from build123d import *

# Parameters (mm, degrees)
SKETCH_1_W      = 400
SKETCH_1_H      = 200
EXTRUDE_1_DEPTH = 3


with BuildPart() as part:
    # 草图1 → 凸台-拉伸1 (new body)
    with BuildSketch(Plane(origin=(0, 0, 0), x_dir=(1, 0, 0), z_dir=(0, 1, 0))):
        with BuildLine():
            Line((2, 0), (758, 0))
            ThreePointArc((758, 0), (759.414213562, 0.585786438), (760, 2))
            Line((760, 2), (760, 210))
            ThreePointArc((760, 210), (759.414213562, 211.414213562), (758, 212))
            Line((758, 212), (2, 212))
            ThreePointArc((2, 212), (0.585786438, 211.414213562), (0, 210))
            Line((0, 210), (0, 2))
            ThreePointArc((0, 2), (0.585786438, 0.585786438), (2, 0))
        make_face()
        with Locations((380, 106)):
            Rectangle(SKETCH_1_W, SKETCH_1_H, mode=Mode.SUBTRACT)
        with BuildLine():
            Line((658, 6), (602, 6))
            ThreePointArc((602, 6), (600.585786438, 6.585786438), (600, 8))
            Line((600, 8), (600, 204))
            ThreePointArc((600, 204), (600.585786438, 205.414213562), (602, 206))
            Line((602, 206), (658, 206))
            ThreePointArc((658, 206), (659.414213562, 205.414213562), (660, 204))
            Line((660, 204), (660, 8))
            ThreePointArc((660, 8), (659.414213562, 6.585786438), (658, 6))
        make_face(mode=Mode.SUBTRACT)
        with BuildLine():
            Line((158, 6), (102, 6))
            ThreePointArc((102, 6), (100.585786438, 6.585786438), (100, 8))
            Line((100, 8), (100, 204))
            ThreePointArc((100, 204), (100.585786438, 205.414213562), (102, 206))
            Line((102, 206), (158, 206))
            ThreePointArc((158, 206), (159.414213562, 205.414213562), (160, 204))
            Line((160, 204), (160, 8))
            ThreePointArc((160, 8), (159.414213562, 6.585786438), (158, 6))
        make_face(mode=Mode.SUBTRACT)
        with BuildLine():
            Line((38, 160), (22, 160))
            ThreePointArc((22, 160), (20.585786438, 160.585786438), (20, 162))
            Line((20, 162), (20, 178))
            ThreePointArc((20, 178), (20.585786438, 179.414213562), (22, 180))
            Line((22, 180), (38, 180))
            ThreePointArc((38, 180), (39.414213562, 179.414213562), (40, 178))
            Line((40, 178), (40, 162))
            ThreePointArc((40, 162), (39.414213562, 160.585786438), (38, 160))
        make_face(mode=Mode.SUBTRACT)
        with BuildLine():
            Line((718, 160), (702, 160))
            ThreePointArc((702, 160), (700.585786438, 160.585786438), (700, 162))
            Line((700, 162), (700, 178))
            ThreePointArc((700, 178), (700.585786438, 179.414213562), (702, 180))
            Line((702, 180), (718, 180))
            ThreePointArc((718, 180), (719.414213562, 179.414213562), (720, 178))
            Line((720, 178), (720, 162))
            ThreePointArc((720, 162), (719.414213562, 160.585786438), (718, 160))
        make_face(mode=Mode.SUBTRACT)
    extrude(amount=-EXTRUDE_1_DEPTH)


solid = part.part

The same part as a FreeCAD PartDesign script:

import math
import FreeCAD as App
import Part
import Sketcher
Q = App.Units.Quantity

doc = App.newDocument("Part")
body = doc.addObject("PartDesign::Body", "Body")

# Sketch on XZ plane
sketch1 = body.newObject("Sketcher::SketchObject", "Sketch")
sketch1.AttachmentSupport = (doc.getObject("XZ_Plane"), [""])
sketch1.MapMode = "FlatFace"
sketch1.addGeometry(Part.LineSegment(App.Vector(2, 0, 0), App.Vector(758, 0, 0)), False)
sketch1.addGeometry(Part.ArcOfCircle(Part.Circle(App.Vector(758, -2, 0), App.Vector(0, 0, 1), 2), math.radians(0), math.radians(90)), False)
sketch1.addGeometry(Part.LineSegment(App.Vector(760, -2, 0), App.Vector(760, -210, 0)), False)
sketch1.addGeometry(Part.ArcOfCircle(Part.Circle(App.Vector(758, -210, 0), App.Vector(0, 0, 1), 2), math.radians(-90), math.radians(0)), False)
sketch1.addGeometry(Part.LineSegment(App.Vector(758, -212, 0), App.Vector(2, -212, 0)), False)
sketch1.addGeometry(Part.ArcOfCircle(Part.Circle(App.Vector(2, -210, 0), App.Vector(0, 0, 1), 2), math.radians(-180), math.radians(-90)), False)
sketch1.addGeometry(Part.LineSegment(App.Vector(0, -210, 0), App.Vector(0, -2, 0)), False)
sketch1.addGeometry(Part.ArcOfCircle(Part.Circle(App.Vector(2, -2, 0), App.Vector(0, 0, 1), 2), math.radians(90), math.radians(180)), False)
sketch1.addGeometry(Part.ArcOfCircle(Part.Circle(App.Vector(158, -8, 0), App.Vector(0, 0, 1), 2), math.radians(0), math.radians(90)), False)
sketch1.addGeometry(Part.LineSegment(App.Vector(158, -6, 0), App.Vector(102, -6, 0)), False)
sketch1.addGeometry(Part.ArcOfCircle(Part.Circle(App.Vector(102, -8, 0), App.Vector(0, 0, 1), 2), math.radians(90), math.radians(180)), False)
sketch1.addGeometry(Part.LineSegment(App.Vector(100, -8, 0), App.Vector(100, -204, 0)), False)
sketch1.addGeometry(Part.ArcOfCircle(Part.Circle(App.Vector(102, -204, 0), App.Vector(0, 0, 1), 2), math.radians(-180), math.radians(-90)), False)
sketch1.addGeometry(Part.LineSegment(App.Vector(102, -206, 0), App.Vector(158, -206, 0)), False)
sketch1.addGeometry(Part.ArcOfCircle(Part.Circle(App.Vector(158, -204, 0), App.Vector(0, 0, 1), 2), math.radians(-90), math.radians(0)), False)
sketch1.addGeometry(Part.LineSegment(App.Vector(160, -204, 0), App.Vector(160, -8, 0)), False)
sketch1.addGeometry(Part.ArcOfCircle(Part.Circle(App.Vector(38, -162, 0), App.Vector(0, 0, 1), 2), math.radians(0), math.radians(90)), False)
sketch1.addGeometry(Part.LineSegment(App.Vector(38, -160, 0), App.Vector(22, -160, 0)), False)
sketch1.addGeometry(Part.ArcOfCircle(Part.Circle(App.Vector(22, -162, 0), App.Vector(0, 0, 1), 2), math.radians(90), math.radians(180)), False)
sketch1.addGeometry(Part.LineSegment(App.Vector(20, -162, 0), App.Vector(20, -178, 0)), False)
sketch1.addGeometry(Part.ArcOfCircle(Part.Circle(App.Vector(22, -178, 0), App.Vector(0, 0, 1), 2), math.radians(-180), math.radians(-90)), False)
sketch1.addGeometry(Part.LineSegment(App.Vector(22, -180, 0), App.Vector(38, -180, 0)), False)
sketch1.addGeometry(Part.ArcOfCircle(Part.Circle(App.Vector(38, -178, 0), App.Vector(0, 0, 1), 2), math.radians(-90), math.radians(0)), False)
sketch1.addGeometry(Part.LineSegment(App.Vector(40, -178, 0), App.Vector(40, -162, 0)), False)
sketch1.addGeometry(Part.LineSegment(App.Vector(580, -6, 0), App.Vector(180, -6, 0)), False)
sketch1.addGeometry(Part.LineSegment(App.Vector(180, -6, 0), App.Vector(180, -206, 0)), False)
sketch1.addGeometry(Part.LineSegment(App.Vector(180, -206, 0), App.Vector(580, -206, 0)), False)
sketch1.addGeometry(Part.LineSegment(App.Vector(580, -206, 0), App.Vector(580, -6, 0)), False)
sketch1.addGeometry(Part.ArcOfCircle(Part.Circle(App.Vector(658, -8, 0), App.Vector(0, 0, 1), 2), math.radians(0), math.radians(90)), False)
sketch1.addGeometry(Part.LineSegment(App.Vector(658, -6, 0), App.Vector(602, -6, 0)), False)
sketch1.addGeometry(Part.ArcOfCircle(Part.Circle(App.Vector(602, -8, 0), App.Vector(0, 0, 1), 2), math.radians(90), math.radians(180)), False)
sketch1.addGeometry(Part.LineSegment(App.Vector(600, -8, 0), App.Vector(600, -204, 0)), False)
sketch1.addGeometry(Part.ArcOfCircle(Part.Circle(App.Vector(602, -204, 0), App.Vector(0, 0, 1), 2), math.radians(-180), math.radians(-90)), False)
sketch1.addGeometry(Part.LineSegment(App.Vector(602, -206, 0), App.Vector(658, -206, 0)), False)
sketch1.addGeometry(Part.ArcOfCircle(Part.Circle(App.Vector(658, -204, 0), App.Vector(0, 0, 1), 2), math.radians(-90), math.radians(0)), False)
sketch1.addGeometry(Part.LineSegment(App.Vector(660, -204, 0), App.Vector(660, -8, 0)), False)
sketch1.addGeometry(Part.ArcOfCircle(Part.Circle(App.Vector(718, -162, 0), App.Vector(0, 0, 1), 2), math.radians(0), math.radians(90)), False)
sketch1.addGeometry(Part.LineSegment(App.Vector(718, -160, 0), App.Vector(702, -160, 0)), False)
sketch1.addGeometry(Part.ArcOfCircle(Part.Circle(App.Vector(702, -162, 0), App.Vector(0, 0, 1), 2), math.radians(90), math.radians(180)), False)
sketch1.addGeometry(Part.LineSegment(App.Vector(700, -162, 0), App.Vector(700, -178, 0)), False)
sketch1.addGeometry(Part.ArcOfCircle(Part.Circle(App.Vector(702, -178, 0), App.Vector(0, 0, 1), 2), math.radians(-180), math.radians(-90)), False)
sketch1.addGeometry(Part.LineSegment(App.Vector(702, -180, 0), App.Vector(718, -180, 0)), False)
sketch1.addGeometry(Part.ArcOfCircle(Part.Circle(App.Vector(718, -178, 0), App.Vector(0, 0, 1), 2), math.radians(-90), math.radians(0)), False)
sketch1.addGeometry(Part.LineSegment(App.Vector(720, -178, 0), App.Vector(720, -162, 0)), False)
sketch1.addConstraint(Sketcher.Constraint("Tangent", 0, 2, 1, 2))
sketch1.addConstraint(Sketcher.Constraint("Tangent", 1, 1, 2, 1))
sketch1.addConstraint(Sketcher.Constraint("Tangent", 2, 2, 3, 2))
sketch1.addConstraint(Sketcher.Constraint("Tangent", 3, 1, 4, 1))
sketch1.addConstraint(Sketcher.Constraint("Tangent", 4, 2, 5, 2))
sketch1.addConstraint(Sketcher.Constraint("Tangent", 5, 1, 6, 1))
sketch1.addConstraint(Sketcher.Constraint("Tangent", 6, 2, 7, 2))
sketch1.addConstraint(Sketcher.Constraint("Tangent", 7, 1, 0, 1))
sketch1.addConstraint(Sketcher.Constraint("Tangent", 8, 2, 9, 1))
sketch1.addConstraint(Sketcher.Constraint("Tangent", 9, 2, 10, 1))
sketch1.addConstraint(Sketcher.Constraint("Tangent", 10, 2, 11, 1))
sketch1.addConstraint(Sketcher.Constraint("Tangent", 11, 2, 12, 1))
sketch1.addConstraint(Sketcher.Constraint("Tangent", 12, 2, 13, 1))
sketch1.addConstraint(Sketcher.Constraint("Tangent", 13, 2, 14, 1))
sketch1.addConstraint(Sketcher.Constraint("Tangent", 14, 2, 15, 1))
sketch1.addConstraint(Sketcher.Constraint("Tangent", 15, 2, 8, 1))
sketch1.addConstraint(Sketcher.Constraint("Tangent", 16, 2, 17, 1))
sketch1.addConstraint(Sketcher.Constraint("Tangent", 17, 2, 18, 1))
sketch1.addConstraint(Sketcher.Constraint("Tangent", 18, 2, 19, 1))
sketch1.addConstraint(Sketcher.Constraint("Tangent", 19, 2, 20, 1))
sketch1.addConstraint(Sketcher.Constraint("Tangent", 20, 2, 21, 1))
sketch1.addConstraint(Sketcher.Constraint("Tangent", 21, 2, 22, 1))
sketch1.addConstraint(Sketcher.Constraint("Tangent", 22, 2, 23, 1))
sketch1.addConstraint(Sketcher.Constraint("Tangent", 23, 2, 16, 1))
sketch1.addConstraint(Sketcher.Constraint("Coincident", 24, 2, 25, 1))
sketch1.addConstraint(Sketcher.Constraint("Coincident", 25, 2, 26, 1))
sketch1.addConstraint(Sketcher.Constraint("Coincident", 26, 2, 27, 1))
sketch1.addConstraint(Sketcher.Constraint("Coincident", 27, 2, 24, 1))
sketch1.addConstraint(Sketcher.Constraint("Tangent", 28, 2, 29, 1))
sketch1.addConstraint(Sketcher.Constraint("Tangent", 29, 2, 30, 1))
sketch1.addConstraint(Sketcher.Constraint("Tangent", 30, 2, 31, 1))
sketch1.addConstraint(Sketcher.Constraint("Tangent", 31, 2, 32, 1))
sketch1.addConstraint(Sketcher.Constraint("Tangent", 32, 2, 33, 1))
sketch1.addConstraint(Sketcher.Constraint("Tangent", 33, 2, 34, 1))
sketch1.addConstraint(Sketcher.Constraint("Tangent", 34, 2, 35, 1))
sketch1.addConstraint(Sketcher.Constraint("Tangent", 35, 2, 28, 1))
sketch1.addConstraint(Sketcher.Constraint("Tangent", 36, 2, 37, 1))
sketch1.addConstraint(Sketcher.Constraint("Tangent", 37, 2, 38, 1))
sketch1.addConstraint(Sketcher.Constraint("Tangent", 38, 2, 39, 1))
sketch1.addConstraint(Sketcher.Constraint("Tangent", 39, 2, 40, 1))
sketch1.addConstraint(Sketcher.Constraint("Tangent", 40, 2, 41, 1))
sketch1.addConstraint(Sketcher.Constraint("Tangent", 41, 2, 42, 1))
sketch1.addConstraint(Sketcher.Constraint("Tangent", 42, 2, 43, 1))
sketch1.addConstraint(Sketcher.Constraint("Tangent", 43, 2, 36, 1))
sketch1.addConstraint(Sketcher.Constraint("Horizontal", 0))
sketch1.addConstraint(Sketcher.Constraint("Vertical", 2))
sketch1.addConstraint(Sketcher.Constraint("Horizontal", 4))
sketch1.addConstraint(Sketcher.Constraint("Vertical", 6))
sketch1.addConstraint(Sketcher.Constraint("Horizontal", 9))
sketch1.addConstraint(Sketcher.Constraint("Vertical", 11))
sketch1.addConstraint(Sketcher.Constraint("Horizontal", 13))
sketch1.addConstraint(Sketcher.Constraint("Vertical", 15))
sketch1.addConstraint(Sketcher.Constraint("Horizontal", 17))
sketch1.addConstraint(Sketcher.Constraint("Vertical", 19))
sketch1.addConstraint(Sketcher.Constraint("Horizontal", 21))
sketch1.addConstraint(Sketcher.Constraint("Vertical", 23))
sketch1.addConstraint(Sketcher.Constraint("Horizontal", 24))
sketch1.addConstraint(Sketcher.Constraint("Vertical", 25))
sketch1.addConstraint(Sketcher.Constraint("Horizontal", 26))
sketch1.addConstraint(Sketcher.Constraint("Vertical", 27))
sketch1.addConstraint(Sketcher.Constraint("Horizontal", 29))
sketch1.addConstraint(Sketcher.Constraint("Vertical", 31))
sketch1.addConstraint(Sketcher.Constraint("Horizontal", 33))
sketch1.addConstraint(Sketcher.Constraint("Vertical", 35))
sketch1.addConstraint(Sketcher.Constraint("Horizontal", 37))
sketch1.addConstraint(Sketcher.Constraint("Vertical", 39))
sketch1.addConstraint(Sketcher.Constraint("Horizontal", 41))
sketch1.addConstraint(Sketcher.Constraint("Vertical", 43))
sketch1.addConstraint(Sketcher.Constraint("Equal", 1, 3))
sketch1.addConstraint(Sketcher.Constraint("Equal", 3, 5))
sketch1.addConstraint(Sketcher.Constraint("Equal", 5, 7))
sketch1.addConstraint(Sketcher.Constraint("Equal", 7, 8))
sketch1.addConstraint(Sketcher.Constraint("Equal", 8, 10))
sketch1.addConstraint(Sketcher.Constraint("Equal", 10, 12))
sketch1.addConstraint(Sketcher.Constraint("Equal", 12, 14))
sketch1.addConstraint(Sketcher.Constraint("Equal", 14, 16))
sketch1.addConstraint(Sketcher.Constraint("Equal", 16, 18))
sketch1.addConstraint(Sketcher.Constraint("Equal", 18, 20))
sketch1.addConstraint(Sketcher.Constraint("Equal", 20, 22))
sketch1.addConstraint(Sketcher.Constraint("Equal", 22, 28))
sketch1.addConstraint(Sketcher.Constraint("Equal", 28, 30))
sketch1.addConstraint(Sketcher.Constraint("Equal", 30, 32))
sketch1.addConstraint(Sketcher.Constraint("Equal", 32, 34))
sketch1.addConstraint(Sketcher.Constraint("Equal", 34, 36))
sketch1.addConstraint(Sketcher.Constraint("Equal", 36, 38))
sketch1.addConstraint(Sketcher.Constraint("Equal", 38, 40))
sketch1.addConstraint(Sketcher.Constraint("Equal", 40, 42))
sketch1.addConstraint(Sketcher.Constraint("PointOnObject", 0, 2, -1))
sketch1.addConstraint(Sketcher.Constraint("PointOnObject", 5, 1, -2))
sketch1.addConstraint(Sketcher.Constraint("Horizontal", 10, 3, 28, 3))
sketch1.addConstraint(Sketcher.Constraint("Horizontal", 14, 3, 32, 3))
sketch1.addConstraint(Sketcher.Constraint("Horizontal", 18, 3, 36, 3))
sketch1.addConstraint(Sketcher.Constraint("Horizontal", 22, 3, 40, 3))
sketch1.addConstraint(Sketcher.Constraint("Horizontal", 9, 2, 24, 2))
sketch1.addConstraint(Sketcher.Constraint("Horizontal", 13, 2, 25, 2))
sketch1.addConstraint(Sketcher.Constraint("Equal", 13, 29))
sketch1.addConstraint(Sketcher.Constraint("Equal", 21, 37))
sketch1.addConstraint(Sketcher.Constraint("Equal", 41, 19))
sketch1.addConstraint(Sketcher.Constraint("Radius", 1, Q("2 mm")))
sketch1.addConstraint(Sketcher.Constraint("DistanceX", 0, 1, 0, 2, Q("756 mm")))
sketch1.addConstraint(Sketcher.Constraint("DistanceX", 9, 2, 9, 1, Q("56 mm")))
sketch1.addConstraint(Sketcher.Constraint("DistanceX", 17, 2, 17, 1, Q("16 mm")))
sketch1.addConstraint(Sketcher.Constraint("DistanceX", 24, 2, 24, 1, Q("400 mm")))
sketch1.addConstraint(Sketcher.Constraint("DistanceY", 2, 2, 2, 1, Q("208 mm")))
sketch1.addConstraint(Sketcher.Constraint("DistanceY", 11, 2, 11, 1, Q("196 mm")))
sketch1.addConstraint(Sketcher.Constraint("DistanceX", -1, 1, 8, 3, Q("158 mm")))
sketch1.addConstraint(Sketcher.Constraint("DistanceY", 8, 3, -1, 1, Q("8 mm")))
sketch1.addConstraint(Sketcher.Constraint("DistanceX", -1, 1, 16, 3, Q("38 mm")))
sketch1.addConstraint(Sketcher.Constraint("DistanceY", 16, 3, -1, 1, Q("162 mm")))
sketch1.addConstraint(Sketcher.Constraint("DistanceX", -1, 1, 28, 3, Q("658 mm")))
sketch1.addConstraint(Sketcher.Constraint("DistanceX", -1, 1, 36, 3, Q("718 mm")))
sketch1.addConstraint(Sketcher.Constraint("DistanceX", -1, 1, 24, 2, Q("180 mm")))
pad1 = body.newObject("PartDesign::Pad", "Pad")
pad1.Profile = sketch1
pad1.Length = 3

doc.recompute()
